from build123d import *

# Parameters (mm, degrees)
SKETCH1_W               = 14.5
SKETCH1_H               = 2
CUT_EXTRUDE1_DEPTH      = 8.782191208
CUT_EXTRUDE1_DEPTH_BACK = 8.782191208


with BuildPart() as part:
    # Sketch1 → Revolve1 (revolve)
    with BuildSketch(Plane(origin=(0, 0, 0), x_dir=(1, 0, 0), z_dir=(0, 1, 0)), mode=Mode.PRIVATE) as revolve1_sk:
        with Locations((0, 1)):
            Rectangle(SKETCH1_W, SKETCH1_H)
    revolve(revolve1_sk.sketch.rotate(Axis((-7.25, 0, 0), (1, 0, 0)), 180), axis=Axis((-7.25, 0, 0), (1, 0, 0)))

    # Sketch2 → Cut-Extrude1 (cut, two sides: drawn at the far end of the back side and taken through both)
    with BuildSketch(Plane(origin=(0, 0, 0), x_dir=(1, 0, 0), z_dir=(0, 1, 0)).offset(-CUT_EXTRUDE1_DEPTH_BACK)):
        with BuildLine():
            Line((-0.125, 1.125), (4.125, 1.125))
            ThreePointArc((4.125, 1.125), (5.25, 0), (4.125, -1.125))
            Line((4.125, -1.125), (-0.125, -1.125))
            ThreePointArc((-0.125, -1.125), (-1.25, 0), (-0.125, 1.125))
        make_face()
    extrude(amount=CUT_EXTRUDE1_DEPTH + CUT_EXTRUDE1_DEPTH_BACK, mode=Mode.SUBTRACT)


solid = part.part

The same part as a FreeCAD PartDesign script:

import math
import FreeCAD as App
import Part
import Sketcher

V = App.Vector


def add_polygon(sketch, points):
    """Adds a closed chain of lines whose ends are joined by coincident constraints."""
    first, n = sketch.GeometryCount, len(points)
    for a, b in zip(points, points[1:] + points[:1]):
        sketch.addGeometry(Part.LineSegment(App.Vector(*a, 0), App.Vector(*b, 0)), False)
    for i in range(n):
        sketch.addConstraint(Sketcher.Constraint("Coincident", first + i, 2, first + (i + 1) % n, 1))

doc = App.newDocument("Part")
body = doc.addObject("PartDesign::Body", "Body")

sketch1 = body.newObject("Sketcher::SketchObject", "Sketch")
sketch1.AttachmentSupport = (doc.getObject("XZ_Plane"), [""])
sketch1.MapMode = "FlatFace"
add_polygon(sketch1, [(-7.25, -2), (-7.25, 0), (7.25, 0), (7.25, -2)])
sketch1.addConstraint([
    Sketcher.Constraint("Vertical", 0),
    Sketcher.Constraint("Horizontal", 1),
    Sketcher.Constraint("Vertical", 2),
    Sketcher.Constraint("Horizontal", 3),
    Sketcher.Constraint("Symmetric", 0, 2, 1, 2, -1, 1),
    Sketcher.Constraint("DistanceY", 0, 1, 0, 2, 2.0),
    Sketcher.Constraint("DistanceX", 1, 1, 1, 2, 14.5),
])
revolution = body.newObject("PartDesign::Revolution", "Revolution")
revolution.Profile = sketch1
revolution.ReferenceAxis = (sketch1, ["H_Axis"])
revolution.Angle = 360

sketch2 = body.newObject("Sketcher::SketchObject", "Sketch001")
sketch2.AttachmentSupport = (doc.getObject("XZ_Plane"), [""])
sketch2.MapMode = "FlatFace"
sketch2.addGeometry([
    Part.LineSegment(V(4.125, -1.125, 0), V(-0.125, -1.125, 0)),
    Part.ArcOfCircle(Part.Circle(V(-0.125, 0, 0), V(0, 0, 1), 1.125), math.radians(90), math.radians(270)),
    Part.LineSegment(V(-0.125, 1.125, 0), V(4.125, 1.125, 0)),
    Part.ArcOfCircle(Part.Circle(V(4.125, 0, 0), V(0, 0, 1), 1.125), math.radians(-90), math.radians(90)),
], False)
sketch2.addConstraint([
    Sketcher.Constraint("Tangent", 0, 2, 1, 2),
    Sketcher.Constraint("Tangent", 1, 1, 2, 1),
    Sketcher.Constraint("Tangent", 2, 2, 3, 2),
    Sketcher.Constraint("Tangent", 3, 1, 0, 1),
    Sketcher.Constraint("Horizontal", 0),
    Sketcher.Constraint("Horizontal", 2),
    Sketcher.Constraint("PointOnObject", 1, 3, -1),
    Sketcher.Constraint("Radius", 1, 1.125),
    Sketcher.Constraint("DistanceX", 0, 2, 0, 1, 4.25),
    Sketcher.Constraint("DistanceX", 1, 3, -1, 1, 0.125),
])
pocket1 = body.newObject("PartDesign::Pocket", "Pocket")
pocket1.Profile = sketch2
pocket1.Type = "ThroughAll"
pocket1.Midplane = True

doc.recompute()
